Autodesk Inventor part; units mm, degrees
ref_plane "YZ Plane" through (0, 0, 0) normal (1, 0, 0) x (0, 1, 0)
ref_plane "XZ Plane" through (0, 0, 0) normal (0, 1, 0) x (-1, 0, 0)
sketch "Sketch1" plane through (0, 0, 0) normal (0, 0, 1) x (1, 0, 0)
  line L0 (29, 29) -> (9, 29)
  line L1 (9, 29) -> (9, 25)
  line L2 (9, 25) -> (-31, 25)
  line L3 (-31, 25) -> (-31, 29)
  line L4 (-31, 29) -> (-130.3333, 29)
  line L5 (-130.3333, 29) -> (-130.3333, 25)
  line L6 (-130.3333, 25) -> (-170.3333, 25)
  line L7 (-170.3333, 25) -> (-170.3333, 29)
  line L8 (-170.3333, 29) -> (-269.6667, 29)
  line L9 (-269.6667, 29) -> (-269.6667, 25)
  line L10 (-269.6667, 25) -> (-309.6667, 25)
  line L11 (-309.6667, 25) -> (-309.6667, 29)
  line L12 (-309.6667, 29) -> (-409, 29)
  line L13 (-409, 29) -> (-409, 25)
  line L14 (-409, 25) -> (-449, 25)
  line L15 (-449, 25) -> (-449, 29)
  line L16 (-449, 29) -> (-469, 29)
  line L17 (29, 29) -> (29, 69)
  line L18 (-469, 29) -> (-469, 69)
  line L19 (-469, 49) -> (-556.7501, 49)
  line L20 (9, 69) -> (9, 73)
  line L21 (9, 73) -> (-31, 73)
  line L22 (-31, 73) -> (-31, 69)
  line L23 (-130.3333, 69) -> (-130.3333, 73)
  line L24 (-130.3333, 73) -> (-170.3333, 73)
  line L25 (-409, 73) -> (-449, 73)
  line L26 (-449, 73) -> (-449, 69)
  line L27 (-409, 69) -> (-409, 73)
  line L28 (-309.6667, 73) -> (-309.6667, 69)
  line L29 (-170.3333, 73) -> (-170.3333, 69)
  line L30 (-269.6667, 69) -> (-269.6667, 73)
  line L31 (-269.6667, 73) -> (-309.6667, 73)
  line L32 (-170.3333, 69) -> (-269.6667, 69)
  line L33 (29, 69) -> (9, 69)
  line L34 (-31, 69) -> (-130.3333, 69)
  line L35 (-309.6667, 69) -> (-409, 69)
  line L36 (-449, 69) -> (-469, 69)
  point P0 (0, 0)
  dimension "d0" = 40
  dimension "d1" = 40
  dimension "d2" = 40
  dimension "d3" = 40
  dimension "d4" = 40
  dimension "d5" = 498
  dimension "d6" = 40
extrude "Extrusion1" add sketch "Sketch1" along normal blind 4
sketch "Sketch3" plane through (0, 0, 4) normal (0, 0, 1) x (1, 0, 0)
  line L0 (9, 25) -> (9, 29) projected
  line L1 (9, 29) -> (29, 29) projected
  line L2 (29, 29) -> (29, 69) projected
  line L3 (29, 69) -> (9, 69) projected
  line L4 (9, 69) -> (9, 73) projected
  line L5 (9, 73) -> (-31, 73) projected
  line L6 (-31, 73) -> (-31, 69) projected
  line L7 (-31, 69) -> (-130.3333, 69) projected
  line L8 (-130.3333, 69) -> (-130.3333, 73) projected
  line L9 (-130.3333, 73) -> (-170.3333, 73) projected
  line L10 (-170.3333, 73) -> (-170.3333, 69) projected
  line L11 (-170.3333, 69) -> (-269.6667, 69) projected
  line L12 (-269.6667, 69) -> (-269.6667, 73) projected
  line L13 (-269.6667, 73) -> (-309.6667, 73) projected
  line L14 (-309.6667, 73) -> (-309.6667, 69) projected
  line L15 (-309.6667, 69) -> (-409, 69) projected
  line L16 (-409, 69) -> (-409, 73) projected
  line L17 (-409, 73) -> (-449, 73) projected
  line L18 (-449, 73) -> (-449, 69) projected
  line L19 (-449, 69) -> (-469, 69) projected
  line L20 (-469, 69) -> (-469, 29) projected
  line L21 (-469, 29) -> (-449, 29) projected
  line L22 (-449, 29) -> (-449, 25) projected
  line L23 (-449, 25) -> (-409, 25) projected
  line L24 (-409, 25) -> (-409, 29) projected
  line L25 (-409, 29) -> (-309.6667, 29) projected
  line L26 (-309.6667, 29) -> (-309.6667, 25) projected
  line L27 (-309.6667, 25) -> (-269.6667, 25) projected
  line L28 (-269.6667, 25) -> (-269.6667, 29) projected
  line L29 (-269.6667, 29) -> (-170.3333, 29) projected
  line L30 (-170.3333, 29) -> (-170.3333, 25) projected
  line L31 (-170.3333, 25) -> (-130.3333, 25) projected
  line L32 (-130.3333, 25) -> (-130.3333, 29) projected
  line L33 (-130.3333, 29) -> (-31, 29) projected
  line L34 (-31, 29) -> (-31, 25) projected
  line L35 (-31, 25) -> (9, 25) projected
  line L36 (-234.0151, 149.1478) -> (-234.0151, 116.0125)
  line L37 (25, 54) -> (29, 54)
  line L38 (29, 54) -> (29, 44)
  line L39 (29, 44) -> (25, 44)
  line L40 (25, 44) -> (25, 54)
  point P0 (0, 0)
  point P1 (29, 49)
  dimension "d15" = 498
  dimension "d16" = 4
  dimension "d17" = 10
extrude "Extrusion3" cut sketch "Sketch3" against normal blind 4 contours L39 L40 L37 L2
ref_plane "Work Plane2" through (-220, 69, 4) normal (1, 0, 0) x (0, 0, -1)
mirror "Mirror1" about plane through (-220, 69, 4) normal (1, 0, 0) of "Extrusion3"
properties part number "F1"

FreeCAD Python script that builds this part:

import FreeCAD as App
import Part
import Sketcher
from FreeCAD import Vector
Q = App.Units.Quantity

doc = App.newDocument("Part")
body = doc.addObject("PartDesign::Body", "Body")

sketch1 = doc.addObject("Sketcher::SketchObject", "Sketch")
body.addObject(sketch1)
sketch1.AttachmentSupport = (doc.XY_Plane, [""])
sketch1.MapMode = "FlatFace"
sketch1.addGeometry(Part.LineSegment(Vector(9, 29, 0), Vector(29, 29, 0)), False)
sketch1.addGeometry(Part.LineSegment(Vector(29, 29, 0), Vector(29, 69, 0)), False)
sketch1.addGeometry(Part.LineSegment(Vector(29, 69, 0), Vector(9, 69, 0)), False)
sketch1.addGeometry(Part.LineSegment(Vector(9, 69, 0), Vector(9, 73, 0)), False)
sketch1.addGeometry(Part.LineSegment(Vector(9, 73, 0), Vector(-31, 73, 0)), False)
sketch1.addGeometry(Part.LineSegment(Vector(-31, 73, 0), Vector(-31, 69, 0)), False)
sketch1.addGeometry(Part.LineSegment(Vector(-31, 69, 0), Vector(-130.3, 69, 0)), False)
sketch1.addGeometry(Part.LineSegment(Vector(-130.3, 69, 0), Vector(-130.3, 73, 0)), False)
sketch1.addGeometry(Part.LineSegment(Vector(-130.3, 73, 0), Vector(-170.3, 73, 0)), False)
sketch1.addGeometry(Part.LineSegment(Vector(-170.3, 73, 0), Vector(-170.3, 69, 0)), False)
sketch1.addGeometry(Part.LineSegment(Vector(-170.3, 69, 0), Vector(-269.7, 69, 0)), False)
sketch1.addGeometry(Part.LineSegment(Vector(-269.7, 69, 0), Vector(-269.7, 73, 0)), False)
sketch1.addGeometry(Part.LineSegment(Vector(-269.7, 73, 0), Vector(-309.7, 73, 0)), False)
sketch1.addGeometry(Part.LineSegment(Vector(-309.7, 73, 0), Vector(-309.7, 69, 0)), False)
sketch1.addGeometry(Part.LineSegment(Vector(-309.7, 69, 0), Vector(-409, 69, 0)), False)
sketch1.addGeometry(Part.LineSegment(Vector(-409, 69, 0), Vector(-409, 73, 0)), False)
sketch1.addGeometry(Part.LineSegment(Vector(-409, 73, 0), Vector(-449, 73, 0)), False)
sketch1.addGeometry(Part.LineSegment(Vector(-449, 73, 0), Vector(-449, 69, 0)), False)
sketch1.addGeometry(Part.LineSegment(Vector(-449, 69, 0), Vector(-469, 69, 0)), False)
sketch1.addGeometry(Part.LineSegment(Vector(-469, 69, 0), Vector(-469, 29, 0)), False)
sketch1.addGeometry(Part.LineSegment(Vector(-469, 29, 0), Vector(-449, 29, 0)), False)
sketch1.addGeometry(Part.LineSegment(Vector(-449, 29, 0), Vector(-449, 25, 0)), False)
sketch1.addGeometry(Part.LineSegment(Vector(-449, 25, 0), Vector(-409, 25, 0)), False)
sketch1.addGeometry(Part.LineSegment(Vector(-409, 25, 0), Vector(-409, 29, 0)), False)
sketch1.addGeometry(Part.LineSegment(Vector(-409, 29, 0), Vector(-309.7, 29, 0)), False)
sketch1.addGeometry(Part.LineSegment(Vector(-309.7, 29, 0), Vector(-309.7, 25, 0)), False)
sketch1.addGeometry(Part.LineSegment(Vector(-309.7, 25, 0), Vector(-269.7, 25, 0)), False)
sketch1.addGeometry(Part.LineSegment(Vector(-269.7, 25, 0), Vector(-269.7, 29, 0)), False)
sketch1.addGeometry(Part.LineSegment(Vector(-269.7, 29, 0), Vector(-170.3, 29, 0)), False)
sketch1.addGeometry(Part.LineSegment(Vector(-170.3, 29, 0), Vector(-170.3, 25, 0)), False)
sketch1.addGeometry(Part.LineSegment(Vector(-170.3, 25, 0), Vector(-130.3, 25, 0)), False)
sketch1.addGeometry(Part.LineSegment(Vector(-130.3, 25, 0), Vector(-130.3, 29, 0)), False)
sketch1.addGeometry(Part.LineSegment(Vector(-130.3, 29, 0), Vector(-31, 29, 0)), False)
sketch1.addGeometry(Part.LineSegment(Vector(-31, 29, 0), Vector(-31, 25, 0)), False)
sketch1.addGeometry(Part.LineSegment(Vector(-31, 25, 0), Vector(9, 25, 0)), False)
sketch1.addGeometry(Part.LineSegment(Vector(9, 25, 0), Vector(9, 29, 0)), False)
sketch1.addConstraint(Sketcher.Constraint("Coincident", 0, 2, 1, 1))
sketch1.addConstraint(Sketcher.Constraint("Coincident", 1, 2, 2, 1))
sketch1.addConstraint(Sketcher.Constraint("Coincident", 2, 2, 3, 1))
sketch1.addConstraint(Sketcher.Constraint("Coincident", 3, 2, 4, 1))
sketch1.addConstraint(Sketcher.Constraint("Coincident", 4, 2, 5, 1))
sketch1.addConstraint(Sketcher.Constraint("Coincident", 5, 2, 6, 1))
sketch1.addConstraint(Sketcher.Constraint("Coincident", 6, 2, 7, 1))
sketch1.addConstraint(Sketcher.Constraint("Coincident", 7, 2, 8, 1))
sketch1.addConstraint(Sketcher.Constraint("Coincident", 8, 2, 9, 1))
sketch1.addConstraint(Sketcher.Constraint("Coincident", 9, 2, 10, 1))
sketch1.addConstraint(Sketcher.Constraint("Coincident", 10, 2, 11, 1))
sketch1.addConstraint(Sketcher.Constraint("Coincident", 11, 2, 12, 1))
sketch1.addConstraint(Sketcher.Constraint("Coincident", 12, 2, 13, 1))
sketch1.addConstraint(Sketcher.Constraint("Coincident", 13, 2, 14, 1))
sketch1.addConstraint(Sketcher.Constraint("Coincident", 14, 2, 15, 1))
sketch1.addConstraint(Sketcher.Constraint("Coincident", 15, 2, 16, 1))
sketch1.addConstraint(Sketcher.Constraint("Coincident", 16, 2, 17, 1))
sketch1.addConstraint(Sketcher.Constraint("Coincident", 17, 2, 18, 1))
sketch1.addConstraint(Sketcher.Constraint("Coincident", 18, 2, 19, 1))
sketch1.addConstraint(Sketcher.Constraint("Coincident", 19, 2, 20, 1))
sketch1.addConstraint(Sketcher.Constraint("Coincident", 20, 2, 21, 1))
sketch1.addConstraint(Sketcher.Constraint("Coincident", 21, 2, 22, 1))
sketch1.addConstraint(Sketcher.Constraint("Coincident", 22, 2, 23, 1))
sketch1.addConstraint(Sketcher.Constraint("Coincident", 23, 2, 24, 1))
sketch1.addConstraint(Sketcher.Constraint("Coincident", 24, 2, 25, 1))
sketch1.addConstraint(Sketcher.Constraint("Coincident", 25, 2, 26, 1))
sketch1.addConstraint(Sketcher.Constraint("Coincident", 26, 2, 27, 1))
sketch1.addConstraint(Sketcher.Constraint("Coincident", 27, 2, 28, 1))
sketch1.addConstraint(Sketcher.Constraint("Coincident", 28, 2, 29, 1))
sketch1.addConstraint(Sketcher.Constraint("Coincident", 29, 2, 30, 1))
sketch1.addConstraint(Sketcher.Constraint("Coincident", 30, 2, 31, 1))
sketch1.addConstraint(Sketcher.Constraint("Coincident", 31, 2, 32, 1))
sketch1.addConstraint(Sketcher.Constraint("Coincident", 32, 2, 33, 1))
sketch1.addConstraint(Sketcher.Constraint("Coincident", 33, 2, 34, 1))
sketch1.addConstraint(Sketcher.Constraint("Coincident", 34, 2, 35, 1))
sketch1.addConstraint(Sketcher.Constraint("Coincident", 35, 2, 0, 1))
sketch1.addConstraint(Sketcher.Constraint("Horizontal", 0))
sketch1.addConstraint(Sketcher.Constraint("Vertical", 1))
sketch1.addConstraint(Sketcher.Constraint("Horizontal", 2))
sketch1.addConstraint(Sketcher.Constraint("Vertical", 3))
sketch1.addConstraint(Sketcher.Constraint("Horizontal", 4))
sketch1.addConstraint(Sketcher.Constraint("Vertical", 5))
sketch1.addConstraint(Sketcher.Constraint("Horizontal", 6))
sketch1.addConstraint(Sketcher.Constraint("Vertical", 7))
sketch1.addConstraint(Sketcher.Constraint("Horizontal", 8))
sketch1.addConstraint(Sketcher.Constraint("Vertical", 9))
sketch1.addConstraint(Sketcher.Constraint("Horizontal", 10))
sketch1.addConstraint(Sketcher.Constraint("Vertical", 11))
sketch1.addConstraint(Sketcher.Constraint("Horizontal", 12))
sketch1.addConstraint(Sketcher.Constraint("Vertical", 13))
sketch1.addConstraint(Sketcher.Constraint("Horizontal", 14))
sketch1.addConstraint(Sketcher.Constraint("Vertical", 15))
sketch1.addConstraint(Sketcher.Constraint("Horizontal", 16))
sketch1.addConstraint(Sketcher.Constraint("Vertical", 17))
sketch1.addConstraint(Sketcher.Constraint("Horizontal", 18))
sketch1.addConstraint(Sketcher.Constraint("Vertical", 19))
sketch1.addConstraint(Sketcher.Constraint("Horizontal", 20))
sketch1.addConstraint(Sketcher.Constraint("Vertical", 21))
sketch1.addConstraint(Sketcher.Constraint("Horizontal", 22))
sketch1.addConstraint(Sketcher.Constraint("Vertical", 23))
sketch1.addConstraint(Sketcher.Constraint("Horizontal", 24))
sketch1.addConstraint(Sketcher.Constraint("Vertical", 25))
sketch1.addConstraint(Sketcher.Constraint("Horizontal", 26))
sketch1.addConstraint(Sketcher.Constraint("Vertical", 27))
sketch1.addConstraint(Sketcher.Constraint("Horizontal", 28))
sketch1.addConstraint(Sketcher.Constraint("Vertical", 29))
sketch1.addConstraint(Sketcher.Constraint("Horizontal", 30))
sketch1.addConstraint(Sketcher.Constraint("Vertical", 31))
sketch1.addConstraint(Sketcher.Constraint("Horizontal", 32))
sketch1.addConstraint(Sketcher.Constraint("Vertical", 33))
sketch1.addConstraint(Sketcher.Constraint("Horizontal", 34))
sketch1.addConstraint(Sketcher.Constraint("Vertical", 35))
sketch1.addConstraint(Sketcher.Constraint("Horizontal", 2, 2, 5, 2))
sketch1.addConstraint(Sketcher.Constraint("Horizontal", 4, 2, 7, 2))
sketch1.addConstraint(Sketcher.Constraint("Horizontal", 6, 2, 9, 2))
sketch1.addConstraint(Sketcher.Constraint("Horizontal", 8, 2, 11, 2))
sketch1.addConstraint(Sketcher.Constraint("Horizontal", 10, 2, 13, 2))
sketch1.addConstraint(Sketcher.Constraint("Horizontal", 12, 2, 15, 2))
sketch1.addConstraint(Sketcher.Constraint("Horizontal", 14, 2, 17, 2))
sketch1.addConstraint(Sketcher.Constraint("Horizontal", 0, 2, 19, 2))
sketch1.addConstraint(Sketcher.Constraint("Horizontal", 20, 2, 23, 2))
sketch1.addConstraint(Sketcher.Constraint("Horizontal", 22, 2, 25, 2))
sketch1.addConstraint(Sketcher.Constraint("Horizontal", 24, 2, 27, 2))
sketch1.addConstraint(Sketcher.Constraint("Horizontal", 26, 2, 29, 2))
sketch1.addConstraint(Sketcher.Constraint("Horizontal", 28, 2, 31, 2))
sketch1.addConstraint(Sketcher.Constraint("Horizontal", 30, 2, 33, 2))
sketch1.addConstraint(Sketcher.Constraint("Vertical", 17, 2, 20, 2))
sketch1.addConstraint(Sketcher.Constraint("Vertical", 15, 2, 22, 2))
sketch1.addConstraint(Sketcher.Constraint("Vertical", 13, 2, 24, 2))
sketch1.addConstraint(Sketcher.Constraint("Vertical", 11, 2, 26, 2))
sketch1.addConstraint(Sketcher.Constraint("Vertical", 9, 2, 28, 2))
sketch1.addConstraint(Sketcher.Constraint("Vertical", 7, 2, 30, 2))
sketch1.addConstraint(Sketcher.Constraint("Vertical", 5, 2, 32, 2))
sketch1.addConstraint(Sketcher.Constraint("Vertical", 3, 2, 34, 2))
sketch1.addConstraint(Sketcher.Constraint("Equal", 4, 8))
sketch1.addConstraint(Sketcher.Constraint("Equal", 6, 10))
sketch1.addConstraint(Sketcher.Constraint("Equal", 8, 12))
sketch1.addConstraint(Sketcher.Constraint("Equal", 10, 14))
sketch1.addConstraint(Sketcher.Constraint("Equal", 12, 16))
sketch1.addConstraint(Sketcher.Constraint("Equal", 2, 18))
sketch1.addConstraint(Sketcher.Constraint("Equal", 34, 1))
sketch1.addConstraint(Sketcher.Constraint("Equal", 17, 21))
sketch1.addConstraint(Sketcher.Constraint("DistanceX", 4, 2, 4, 1, Q("40 mm")))
sketch1.addConstraint(Sketcher.Constraint("DistanceX", 0, 1, 0, 2, Q("20 mm")))
sketch1.addConstraint(Sketcher.Constraint("DistanceY", 3, 1, 3, 2, Q("4 mm")))
sketch1.addConstraint(Sketcher.Constraint("DistanceX", -1, 1, 0, 2, Q("29 mm")))
sketch1.addConstraint(Sketcher.Constraint("DistanceY", -1, 1, 0, 2, Q("29 mm")))
sketch1.addConstraint(Sketcher.Constraint("DistanceX", 14, 2, -1, 1, Q("409 mm")))
pad1 = doc.addObject("PartDesign::Pad", "Pad")
body.addObject(pad1)
pad1.Profile = sketch1
pad1.Length = 4

sketch2 = doc.addObject("Sketcher::SketchObject", "Sketch001")
body.addObject(sketch2)
sketch2.AttachmentSupport = (doc.XY_Plane, [""])
sketch2.MapMode = "FlatFace"
sketch2.AttachmentOffset = App.Placement(Vector(0, 0, 4), App.Rotation())
sketch2.addGeometry(Part.LineSegment(Vector(25, 44, 0), Vector(29, 44, 0)), False)
sketch2.addGeometry(Part.LineSegment(Vector(29, 44, 0), Vector(29, 54, 0)), False)
sketch2.addGeometry(Part.LineSegment(Vector(29, 54, 0), Vector(25, 54, 0)), False)
sketch2.addGeometry(Part.LineSegment(Vector(25, 54, 0), Vector(25, 44, 0)), False)
sketch2.addConstraint(Sketcher.Constraint("Coincident", 0, 2, 1, 1))
sketch2.addConstraint(Sketcher.Constraint("Coincident", 1, 2, 2, 1))
sketch2.addConstraint(Sketcher.Constraint("Coincident", 2, 2, 3, 1))
sketch2.addConstraint(Sketcher.Constraint("Coincident", 3, 2, 0, 1))
sketch2.addConstraint(Sketcher.Constraint("Horizontal", 0))
sketch2.addConstraint(Sketcher.Constraint("Vertical", 1))
sketch2.addConstraint(Sketcher.Constraint("Horizontal", 2))
sketch2.addConstraint(Sketcher.Constraint("Vertical", 3))
sketch2.addConstraint(Sketcher.Constraint("DistanceX", 0, 1, 0, 2, Q("4 mm")))
sketch2.addConstraint(Sketcher.Constraint("DistanceY", 1, 1, 1, 2, Q("10 mm")))
sketch2.addConstraint(Sketcher.Constraint("DistanceX", -1, 1, 0, 2, Q("29 mm")))
sketch2.addConstraint(Sketcher.Constraint("DistanceY", -1, 1, 0, 2, Q("44 mm")))
pocket1 = doc.addObject("PartDesign::Pocket", "Pocket")
body.addObject(pocket1)
pocket1.Profile = sketch2
pocket1.Length = 4
doc.recompute()

datumplane = doc.addObject("PartDesign::Plane", "DatumPlane")
body.addObject(datumplane)
datumplane.AttachmentSupport = (doc.YZ_Plane, [""])
datumplane.MapMode = "FlatFace"
datumplane.AttachmentOffset = App.Placement(Vector(0, 0, -220), App.Rotation())
mirrored = doc.addObject("PartDesign::Mirrored", "Mirrored")
body.addObject(mirrored)
mirrored.Originals = [pocket1]
mirrored.MirrorPlane = (datumplane, [""])
body.Tip = mirrored

doc.recompute()
